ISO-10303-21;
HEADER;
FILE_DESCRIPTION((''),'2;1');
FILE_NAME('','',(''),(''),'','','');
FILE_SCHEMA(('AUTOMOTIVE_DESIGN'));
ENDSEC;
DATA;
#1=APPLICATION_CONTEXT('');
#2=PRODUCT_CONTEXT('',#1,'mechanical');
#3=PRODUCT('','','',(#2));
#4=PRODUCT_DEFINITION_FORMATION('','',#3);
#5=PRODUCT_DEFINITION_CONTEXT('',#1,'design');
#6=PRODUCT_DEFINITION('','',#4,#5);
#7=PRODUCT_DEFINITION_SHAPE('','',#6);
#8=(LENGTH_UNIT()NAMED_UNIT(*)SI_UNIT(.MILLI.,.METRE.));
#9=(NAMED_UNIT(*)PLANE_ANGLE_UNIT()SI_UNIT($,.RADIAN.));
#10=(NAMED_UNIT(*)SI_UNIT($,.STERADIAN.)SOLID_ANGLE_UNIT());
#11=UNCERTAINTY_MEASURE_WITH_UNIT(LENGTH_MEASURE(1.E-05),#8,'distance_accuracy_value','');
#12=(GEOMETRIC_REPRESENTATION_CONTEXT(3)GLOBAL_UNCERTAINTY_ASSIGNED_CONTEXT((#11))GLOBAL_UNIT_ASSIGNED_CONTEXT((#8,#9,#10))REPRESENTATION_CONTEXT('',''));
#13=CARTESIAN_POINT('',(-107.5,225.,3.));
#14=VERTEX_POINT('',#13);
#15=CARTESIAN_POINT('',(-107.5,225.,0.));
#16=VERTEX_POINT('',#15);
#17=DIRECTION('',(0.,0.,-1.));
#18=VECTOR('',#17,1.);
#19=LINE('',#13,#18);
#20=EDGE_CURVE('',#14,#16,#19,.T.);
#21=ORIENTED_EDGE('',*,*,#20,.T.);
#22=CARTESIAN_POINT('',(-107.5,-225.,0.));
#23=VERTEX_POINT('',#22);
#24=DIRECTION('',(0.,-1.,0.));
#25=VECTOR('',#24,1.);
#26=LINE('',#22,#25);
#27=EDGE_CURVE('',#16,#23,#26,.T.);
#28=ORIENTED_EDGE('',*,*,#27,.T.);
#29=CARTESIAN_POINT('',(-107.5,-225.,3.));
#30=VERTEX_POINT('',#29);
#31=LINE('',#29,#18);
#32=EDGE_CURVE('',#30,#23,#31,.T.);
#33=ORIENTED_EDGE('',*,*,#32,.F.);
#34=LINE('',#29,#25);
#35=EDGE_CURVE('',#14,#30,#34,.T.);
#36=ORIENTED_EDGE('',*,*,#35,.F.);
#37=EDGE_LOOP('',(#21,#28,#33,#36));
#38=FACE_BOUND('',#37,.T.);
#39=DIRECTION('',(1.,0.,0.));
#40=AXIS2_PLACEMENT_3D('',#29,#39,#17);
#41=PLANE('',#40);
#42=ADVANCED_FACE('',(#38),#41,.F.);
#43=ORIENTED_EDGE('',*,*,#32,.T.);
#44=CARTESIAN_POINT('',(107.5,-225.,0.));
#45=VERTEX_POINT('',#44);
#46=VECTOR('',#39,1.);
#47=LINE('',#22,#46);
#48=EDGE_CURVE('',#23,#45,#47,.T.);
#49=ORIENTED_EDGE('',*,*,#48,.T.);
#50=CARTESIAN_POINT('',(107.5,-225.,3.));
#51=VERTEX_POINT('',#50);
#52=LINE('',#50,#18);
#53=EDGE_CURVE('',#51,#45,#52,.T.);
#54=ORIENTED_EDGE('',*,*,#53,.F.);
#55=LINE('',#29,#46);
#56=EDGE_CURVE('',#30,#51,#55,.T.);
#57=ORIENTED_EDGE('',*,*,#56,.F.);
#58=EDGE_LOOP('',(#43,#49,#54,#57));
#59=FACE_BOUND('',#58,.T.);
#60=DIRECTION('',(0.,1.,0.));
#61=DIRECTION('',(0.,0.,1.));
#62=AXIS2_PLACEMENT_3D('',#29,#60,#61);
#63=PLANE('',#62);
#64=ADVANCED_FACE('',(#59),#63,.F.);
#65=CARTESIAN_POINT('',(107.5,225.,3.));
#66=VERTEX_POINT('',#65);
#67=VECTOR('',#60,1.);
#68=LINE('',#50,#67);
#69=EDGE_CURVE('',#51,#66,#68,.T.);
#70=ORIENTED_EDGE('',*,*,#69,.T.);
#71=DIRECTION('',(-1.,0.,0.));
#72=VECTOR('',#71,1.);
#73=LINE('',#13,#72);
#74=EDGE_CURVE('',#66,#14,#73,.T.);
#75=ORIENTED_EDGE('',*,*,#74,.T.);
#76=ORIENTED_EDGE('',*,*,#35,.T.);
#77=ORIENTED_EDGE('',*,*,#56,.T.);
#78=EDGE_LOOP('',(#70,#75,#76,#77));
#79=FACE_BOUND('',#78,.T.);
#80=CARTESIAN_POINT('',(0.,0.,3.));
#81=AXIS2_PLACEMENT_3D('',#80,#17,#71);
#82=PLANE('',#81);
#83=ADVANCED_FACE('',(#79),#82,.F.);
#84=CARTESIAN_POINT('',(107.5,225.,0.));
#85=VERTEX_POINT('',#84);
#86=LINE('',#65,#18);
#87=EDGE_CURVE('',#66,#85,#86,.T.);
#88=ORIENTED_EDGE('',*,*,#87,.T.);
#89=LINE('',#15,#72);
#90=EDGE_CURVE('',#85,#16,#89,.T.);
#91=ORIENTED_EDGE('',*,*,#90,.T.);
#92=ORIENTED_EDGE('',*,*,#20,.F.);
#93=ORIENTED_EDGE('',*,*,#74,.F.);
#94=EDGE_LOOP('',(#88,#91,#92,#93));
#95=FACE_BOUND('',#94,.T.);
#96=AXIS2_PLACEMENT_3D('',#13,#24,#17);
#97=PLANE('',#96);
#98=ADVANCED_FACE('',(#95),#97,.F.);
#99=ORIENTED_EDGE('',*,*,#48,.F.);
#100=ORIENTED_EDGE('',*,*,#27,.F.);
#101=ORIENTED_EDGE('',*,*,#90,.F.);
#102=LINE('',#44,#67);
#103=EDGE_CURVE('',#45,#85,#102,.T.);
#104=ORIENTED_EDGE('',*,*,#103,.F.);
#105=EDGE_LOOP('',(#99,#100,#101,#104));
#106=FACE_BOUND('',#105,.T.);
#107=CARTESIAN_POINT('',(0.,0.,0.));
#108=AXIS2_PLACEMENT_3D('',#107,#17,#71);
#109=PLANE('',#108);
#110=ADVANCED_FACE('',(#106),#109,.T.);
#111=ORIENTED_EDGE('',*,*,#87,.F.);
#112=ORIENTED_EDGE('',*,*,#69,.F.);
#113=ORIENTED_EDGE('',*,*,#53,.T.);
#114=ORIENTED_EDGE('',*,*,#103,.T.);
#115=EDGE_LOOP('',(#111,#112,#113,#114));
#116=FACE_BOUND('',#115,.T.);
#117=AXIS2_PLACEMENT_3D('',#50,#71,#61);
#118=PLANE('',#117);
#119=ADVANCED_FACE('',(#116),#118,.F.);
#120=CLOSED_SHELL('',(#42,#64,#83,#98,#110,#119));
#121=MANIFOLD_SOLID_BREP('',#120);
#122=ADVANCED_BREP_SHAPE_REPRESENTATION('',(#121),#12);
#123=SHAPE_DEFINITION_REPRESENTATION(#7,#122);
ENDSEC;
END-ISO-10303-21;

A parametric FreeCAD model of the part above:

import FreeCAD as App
import Part
import Sketcher
Q = App.Units.Quantity


def add_polygon(sketch, points):
    """Adds a closed chain of lines whose ends are joined by coincident constraints."""
    first, n = sketch.GeometryCount, len(points)
    for a, b in zip(points, points[1:] + points[:1]):
        sketch.addGeometry(Part.LineSegment(App.Vector(*a, 0), App.Vector(*b, 0)), False)
    for i in range(n):
        sketch.addConstraint(Sketcher.Constraint("Coincident", first + i, 2, first + (i + 1) % n, 1))

doc = App.newDocument("Part")
body = doc.addObject("PartDesign::Body", "Body")

# Sketch on XY plane
sketch1 = body.newObject("Sketcher::SketchObject", "Sketch")
sketch1.AttachmentSupport = (doc.getObject("XY_Plane"), [""])
sketch1.MapMode = "FlatFace"
add_polygon(sketch1, [(-108, 225), (-108, -225), (108, -225), (108, 225)])  # lines 0-3
sketch1.addConstraint([
    Sketcher.Constraint("Vertical", 0),
    Sketcher.Constraint("Horizontal", 1),
    Sketcher.Constraint("Vertical", 2),
    Sketcher.Constraint("Horizontal", 3),
    Sketcher.Constraint("Symmetric", 0, 2, 2, 2, -1, 1),
    Sketcher.Constraint("DistanceX", 1, 1, 1, 2, Q("215 mm")),
    Sketcher.Constraint("DistanceY", 0, 2, 0, 1, Q("450 mm")),
])
pad1 = body.newObject("PartDesign::Pad", "Pad")
pad1.Profile = sketch1
pad1.Length = 3

doc.recompute()
